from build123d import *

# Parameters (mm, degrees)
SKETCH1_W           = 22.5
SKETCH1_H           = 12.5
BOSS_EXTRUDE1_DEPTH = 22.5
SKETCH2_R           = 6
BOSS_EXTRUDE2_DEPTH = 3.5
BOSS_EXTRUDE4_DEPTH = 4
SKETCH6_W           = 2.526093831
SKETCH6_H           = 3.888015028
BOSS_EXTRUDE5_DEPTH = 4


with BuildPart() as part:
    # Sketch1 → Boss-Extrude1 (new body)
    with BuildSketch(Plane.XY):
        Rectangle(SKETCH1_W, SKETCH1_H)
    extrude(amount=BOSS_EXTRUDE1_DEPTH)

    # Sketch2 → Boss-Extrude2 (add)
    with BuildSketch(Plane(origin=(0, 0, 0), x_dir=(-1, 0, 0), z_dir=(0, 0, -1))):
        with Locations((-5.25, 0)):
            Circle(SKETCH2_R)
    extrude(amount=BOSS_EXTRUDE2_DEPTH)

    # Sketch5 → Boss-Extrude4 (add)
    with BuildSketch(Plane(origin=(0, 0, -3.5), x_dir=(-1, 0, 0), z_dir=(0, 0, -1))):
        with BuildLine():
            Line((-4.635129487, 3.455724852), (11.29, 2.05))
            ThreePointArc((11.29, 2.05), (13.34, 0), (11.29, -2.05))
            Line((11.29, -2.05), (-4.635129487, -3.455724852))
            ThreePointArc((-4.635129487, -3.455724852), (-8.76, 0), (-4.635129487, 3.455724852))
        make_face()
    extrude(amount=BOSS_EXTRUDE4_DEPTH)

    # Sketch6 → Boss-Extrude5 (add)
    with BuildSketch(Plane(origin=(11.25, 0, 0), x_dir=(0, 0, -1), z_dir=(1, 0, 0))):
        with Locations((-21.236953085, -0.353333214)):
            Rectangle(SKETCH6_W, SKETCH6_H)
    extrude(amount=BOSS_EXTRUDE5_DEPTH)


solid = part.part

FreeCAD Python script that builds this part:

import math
import FreeCAD as App
import Part
import Sketcher


def add_polygon(sketch, points):
    """Adds a closed chain of lines whose ends are joined by coincident constraints."""
    first, n = sketch.GeometryCount, len(points)
    for a, b in zip(points, points[1:] + points[:1]):
        sketch.addGeometry(Part.LineSegment(App.Vector(*a, 0), App.Vector(*b, 0)), False)
    for i in range(n):
        sketch.addConstraint(Sketcher.Constraint("Coincident", first + i, 2, first + (i + 1) % n, 1))

doc = App.newDocument("Part")
params = doc.addObject("Spreadsheet::Sheet", "Params")
for row, (alias, value) in enumerate([
    ("sketch1_width", "22.5 mm"),
    ("sketch1_height", "12.5 mm"),
    ("pad1_length", "22.5 mm"),
    ("sketch2_diameter", "12 mm"),
    ("pad2_length", "3.5 mm"),
    ("sketch3_radius", "3.51 mm"),
    ("sketch3_radius2", "2.05 mm"),
    ("pad3_length", "4 mm"),
    ("pad4_length", "4 mm"),
], start=1):
    params.set(f"A{row}", alias)
    params.set(f"B{row}", "=" + value)
    params.setAlias(f"B{row}", alias)

body = doc.addObject("PartDesign::Body", "Body")

sketch1 = doc.addObject("Sketcher::SketchObject", "Sketch")
body.addObject(sketch1)
sketch1.AttachmentSupport = (doc.XY_Plane, [""])
sketch1.MapMode = "FlatFace"
add_polygon(sketch1, [(-11, 6), (-11, -6), (11, -6), (11, 6)])
sketch1.addConstraint([
    Sketcher.Constraint("Vertical", 0),
    Sketcher.Constraint("Horizontal", 1),
    Sketcher.Constraint("Vertical", 2),
    Sketcher.Constraint("Horizontal", 3),
    Sketcher.Constraint("Symmetric", 0, 2, 2, 2, -1, 1),
    Sketcher.Constraint("DistanceX", 1, 1, 1, 2, 22.5),
    Sketcher.Constraint("DistanceY", 0, 2, 0, 1, 12.5),
])
sketch1.setExpression("Constraints[9]", "Params.sketch1_width")
sketch1.setExpression("Constraints[10]", "Params.sketch1_height")
pad1 = doc.addObject("PartDesign::Pad", "Pad")
body.addObject(pad1)
pad1.Profile = sketch1
pad1.setExpression("Length", "Params.pad1_length")

sketch2 = doc.addObject("Sketcher::SketchObject", "Sketch001")
body.addObject(sketch2)
sketch2.AttachmentSupport = (doc.XY_Plane, [""])
sketch2.MapMode = "FlatFace"
sketch2.addGeometry(Part.Circle(App.Vector(5, 0, 0), App.Vector(0, 0, 1), 6), False)
sketch2.addConstraint([
    Sketcher.Constraint("PointOnObject", 0, 3, -1),
    Sketcher.Constraint("Diameter", 0, 12.0),
    Sketcher.Constraint("DistanceX", -1, 1, 0, 3, 5.25),
])
sketch2.setExpression("Constraints[1]", "Params.sketch2_diameter")
pad2 = doc.addObject("PartDesign::Pad", "Pad001")
body.addObject(pad2)
pad2.Profile = sketch2
pad2.setExpression("Length", "Params.pad2_length")
pad2.Reversed = True

sketch3 = doc.addObject("Sketcher::SketchObject", "Sketch002")
body.addObject(sketch3)
sketch3.AttachmentSupport = (doc.XY_Plane, [""])
sketch3.MapMode = "FlatFace"
sketch3.AttachmentOffset = App.Placement(App.Vector(0, 0, -3.5), App.Rotation())
sketch3.addGeometry([
    Part.LineSegment(App.Vector(-11.3, 2, 0), App.Vector(4.6, 3.5, 0)),
    Part.ArcOfCircle(Part.Circle(App.Vector(5.2, 0, 0), App.Vector(0, 0, 1), 3.5), math.radians(-100), math.radians(100)),
    Part.LineSegment(App.Vector(4.6, -3.5, 0), App.Vector(-11.3, -2, 0)),
    Part.ArcOfCircle(Part.Circle(App.Vector(-11.3, 0, 0), App.Vector(0, 0, 1), 2), math.radians(90), math.radians(270)),
], False)
sketch3.addConstraint([
    Sketcher.Constraint("Coincident", 0, 2, 1, 2),
    Sketcher.Constraint("Coincident", 1, 1, 2, 1),
    Sketcher.Constraint("Coincident", 2, 2, 3, 2),
    Sketcher.Constraint("Coincident", 3, 1, 0, 1),
    Sketcher.Constraint("Symmetric", 0, 2, 1, 1, -1),
    Sketcher.Constraint("Symmetric", 2, 2, 3, 1, -1),
    Sketcher.Constraint("Vertical", 3, 3, 2, 2),
    Sketcher.Constraint("Radius", 1, 3.51),
    Sketcher.Constraint("Radius", 3, 2.05),
    Sketcher.Constraint("DistanceX", -1, 1, 1, 3, 5.25),
    Sketcher.Constraint("DistanceX", 3, 3, -1, 1, 11.29),
    Sketcher.Constraint("Distance", 0, 15.987051),
])
sketch3.setExpression("Constraints[7]", "Params.sketch3_radius")
sketch3.setExpression("Constraints[8]", "Params.sketch3_radius2")
pad3 = doc.addObject("PartDesign::Pad", "Pad002")
body.addObject(pad3)
pad3.Profile = sketch3
pad3.setExpression("Length", "Params.pad3_length")
pad3.Reversed = True

sketch4 = doc.addObject("Sketcher::SketchObject", "Sketch003")
body.addObject(sketch4)
sketch4.AttachmentSupport = (doc.YZ_Plane, [""])
sketch4.MapMode = "FlatFace"
sketch4.AttachmentOffset = App.Placement(App.Vector(0, 0, 11.25), App.Rotation())
add_polygon(sketch4, [(1.6, 22.5), (-2.3, 22.5), (-2.3, 20), (1.6, 20)])
sketch4.addConstraint([
    Sketcher.Constraint("Horizontal", 0),
    Sketcher.Constraint("Vertical", 1),
    Sketcher.Constraint("Horizontal", 2),
    Sketcher.Constraint("Vertical", 3),
    Sketcher.Constraint("DistanceY", -1, 1, 0, 2, 22.5),
    Sketcher.Constraint("DistanceX", 0, 2, 0, 1, 3.888015),
    Sketcher.Constraint("DistanceY", 1, 2, 1, 1, 2.526094),
    Sketcher.Constraint("DistanceX", 0, 2, -1, 1, 2.297341),
])
pad4 = doc.addObject("PartDesign::Pad", "Pad003")
body.addObject(pad4)
pad4.Profile = sketch4
pad4.setExpression("Length", "Params.pad4_length")

doc.recompute()
